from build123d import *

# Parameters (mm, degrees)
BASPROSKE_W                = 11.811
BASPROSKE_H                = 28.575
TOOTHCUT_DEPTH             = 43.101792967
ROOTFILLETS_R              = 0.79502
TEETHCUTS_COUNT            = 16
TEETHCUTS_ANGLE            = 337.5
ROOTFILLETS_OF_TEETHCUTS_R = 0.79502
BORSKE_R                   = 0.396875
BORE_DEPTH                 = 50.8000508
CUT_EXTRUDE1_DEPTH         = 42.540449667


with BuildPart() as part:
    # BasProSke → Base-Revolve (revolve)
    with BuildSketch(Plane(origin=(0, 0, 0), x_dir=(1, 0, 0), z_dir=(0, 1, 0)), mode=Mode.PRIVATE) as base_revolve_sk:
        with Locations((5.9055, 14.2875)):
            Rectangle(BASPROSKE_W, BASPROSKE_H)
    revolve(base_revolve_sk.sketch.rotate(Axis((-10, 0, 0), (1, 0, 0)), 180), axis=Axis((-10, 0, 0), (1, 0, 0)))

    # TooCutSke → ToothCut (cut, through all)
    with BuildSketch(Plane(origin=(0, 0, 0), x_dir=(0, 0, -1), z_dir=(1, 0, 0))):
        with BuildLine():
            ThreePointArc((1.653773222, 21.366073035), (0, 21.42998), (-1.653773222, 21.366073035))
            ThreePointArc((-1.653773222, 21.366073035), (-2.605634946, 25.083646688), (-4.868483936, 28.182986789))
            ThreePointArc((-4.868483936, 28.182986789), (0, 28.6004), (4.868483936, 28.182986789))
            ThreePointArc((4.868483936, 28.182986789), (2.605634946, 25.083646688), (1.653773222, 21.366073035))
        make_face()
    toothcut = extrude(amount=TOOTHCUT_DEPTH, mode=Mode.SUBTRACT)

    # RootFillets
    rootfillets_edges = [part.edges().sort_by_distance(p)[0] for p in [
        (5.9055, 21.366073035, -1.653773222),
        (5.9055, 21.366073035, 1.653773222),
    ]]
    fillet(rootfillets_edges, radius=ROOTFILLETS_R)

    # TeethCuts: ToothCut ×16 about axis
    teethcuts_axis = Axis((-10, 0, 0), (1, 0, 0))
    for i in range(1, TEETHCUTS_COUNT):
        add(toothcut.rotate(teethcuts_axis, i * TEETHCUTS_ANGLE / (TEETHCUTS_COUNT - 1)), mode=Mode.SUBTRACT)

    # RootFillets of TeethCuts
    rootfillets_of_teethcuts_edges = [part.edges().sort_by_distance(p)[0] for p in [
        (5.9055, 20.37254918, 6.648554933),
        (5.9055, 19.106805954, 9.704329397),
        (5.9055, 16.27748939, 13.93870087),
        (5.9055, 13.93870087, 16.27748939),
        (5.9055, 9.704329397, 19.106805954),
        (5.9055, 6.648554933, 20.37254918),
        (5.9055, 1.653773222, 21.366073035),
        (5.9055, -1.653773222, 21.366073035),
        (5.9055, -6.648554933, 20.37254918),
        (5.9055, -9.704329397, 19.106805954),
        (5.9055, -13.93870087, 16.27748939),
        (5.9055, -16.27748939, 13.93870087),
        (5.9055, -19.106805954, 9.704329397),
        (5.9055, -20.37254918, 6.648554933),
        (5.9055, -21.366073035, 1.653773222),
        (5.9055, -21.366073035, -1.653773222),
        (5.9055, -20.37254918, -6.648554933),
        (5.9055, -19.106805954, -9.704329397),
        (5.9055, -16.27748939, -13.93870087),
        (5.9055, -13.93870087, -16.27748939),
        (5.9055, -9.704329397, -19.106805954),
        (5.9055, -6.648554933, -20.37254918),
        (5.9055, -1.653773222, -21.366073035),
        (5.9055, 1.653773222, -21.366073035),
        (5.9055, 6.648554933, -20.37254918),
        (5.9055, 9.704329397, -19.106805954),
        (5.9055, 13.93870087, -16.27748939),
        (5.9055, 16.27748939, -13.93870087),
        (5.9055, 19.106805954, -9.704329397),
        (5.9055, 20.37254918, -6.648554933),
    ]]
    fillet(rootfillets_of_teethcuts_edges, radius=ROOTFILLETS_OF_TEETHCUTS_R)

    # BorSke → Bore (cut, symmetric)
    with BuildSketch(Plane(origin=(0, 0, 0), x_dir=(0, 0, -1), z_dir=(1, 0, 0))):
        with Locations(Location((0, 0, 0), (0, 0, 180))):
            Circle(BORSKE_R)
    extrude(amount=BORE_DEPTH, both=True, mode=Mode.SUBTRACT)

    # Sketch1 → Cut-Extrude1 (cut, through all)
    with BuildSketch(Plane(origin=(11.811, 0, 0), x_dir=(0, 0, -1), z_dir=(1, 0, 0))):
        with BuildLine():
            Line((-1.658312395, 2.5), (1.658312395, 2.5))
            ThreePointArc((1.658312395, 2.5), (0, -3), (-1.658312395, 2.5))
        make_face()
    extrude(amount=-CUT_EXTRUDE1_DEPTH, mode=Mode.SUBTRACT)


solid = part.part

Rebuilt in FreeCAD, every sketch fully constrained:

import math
import FreeCAD as App
import Part
import Sketcher

V = App.Vector
Q = App.Units.Quantity


def edges_at(feature, points):
    """Names of the edges that pass closest to the given points."""
    edges = feature.Shape.Edges
    near = lambda p: min(range(len(edges)), key=lambda i: edges[i].distToShape(Part.Vertex(*p))[0])
    return sorted({f"Edge{near(p) + 1}" for p in points})

doc = App.newDocument("Part")
body = doc.addObject("PartDesign::Body", "Body")

sketch1 = body.newObject("Sketcher::SketchObject", "Sketch")
sketch1.AttachmentSupport = (doc.getObject("XZ_Plane"), [""])
sketch1.MapMode = "FlatFace"
sketch1.addGeometry([
    Part.LineSegment(V(0, -29, 0), V(0, 0, 0)),
    Part.LineSegment(V(0, 0, 0), V(12, 0, 0)),
    Part.LineSegment(V(12, 0, 0), V(12, -29, 0)),
    Part.LineSegment(V(12, -29, 0), V(0, -29, 0)),
], False)
sketch1.addConstraint([
    Sketcher.Constraint("Coincident", 0, 2, 1, 1),
    Sketcher.Constraint("Coincident", 1, 2, 2, 1),
    Sketcher.Constraint("Coincident", 2, 2, 3, 1),
    Sketcher.Constraint("Coincident", 3, 2, 0, 1),
    Sketcher.Constraint("Vertical", 0),
    Sketcher.Constraint("Horizontal", 1),
    Sketcher.Constraint("Vertical", 2),
    Sketcher.Constraint("Horizontal", 3),
    Sketcher.Constraint("Coincident", 0, 2, -1, 1),
    Sketcher.Constraint("DistanceX", 1, 1, 1, 2, Q("0.465 in")),
    Sketcher.Constraint("DistanceY", 0, 1, 0, 2, Q("1.125 in")),
])
revolution = body.newObject("PartDesign::Revolution", "Revolution")
revolution.Profile = sketch1
revolution.ReferenceAxis = (sketch1, ["H_Axis"])
revolution.Angle = 360

sketch2 = body.newObject("Sketcher::SketchObject", "Sketch001")
sketch2.AttachmentSupport = (doc.getObject("YZ_Plane"), [""])
sketch2.MapMode = "FlatFace"
sketch2.addGeometry([
    Part.ArcOfCircle(Part.Circle(V(0, 0, 0), V(0, 0, 1), 21.4), math.radians(-4.43), math.radians(4.43)),
    Part.ArcOfCircle(Part.Circle(V(20.8, -11.8, 0), V(0, 0, 1), 10.2), math.radians(43), math.radians(87)),
    Part.ArcOfCircle(Part.Circle(V(0, 0, 0), V(0, 0, 1), 28.6), math.radians(-9.8), math.radians(9.8)),
    Part.ArcOfCircle(Part.Circle(V(20.8, 11.8, 0), V(0, 0, 1), 10.2), math.radians(-87), math.radians(-43)),
], False)
sketch2.addConstraint([
    Sketcher.Constraint("Coincident", 0, 1, 1, 2),
    Sketcher.Constraint("Coincident", 1, 1, 2, 1),
    Sketcher.Constraint("Coincident", 2, 2, 3, 2),
    Sketcher.Constraint("Coincident", 3, 1, 0, 2),
    Sketcher.Constraint("Coincident", 0, 3, -1, 1),
    Sketcher.Constraint("Coincident", 2, 3, -1, 1),
    Sketcher.Constraint("Equal", 1, 3),
    Sketcher.Constraint("Symmetric", 1, 3, 3, 3, -1),
    Sketcher.Constraint("Radius", 1, Q("0.4 in")),
    Sketcher.Constraint("Radius", 2, Q("1.126 in")),
    Sketcher.Constraint("Radius", 0, Q("0.8437 in")),
    Sketcher.Constraint("DistanceX", -1, 1, 1, 3, Q("20.750099 mm")),
    Sketcher.Constraint("DistanceY", 1, 3, 1, 1, Q("6.9266 mm")),
])
pocket1 = body.newObject("PartDesign::Pocket", "Pocket")
pocket1.Profile = sketch2
pocket1.Type = "ThroughAll"
pocket1.Reversed = True
doc.recompute()

fillet = body.newObject("PartDesign::Fillet", "Fillet")
fillet.Base = (pocket1, edges_at(pocket1, [(5.905, 21.366, -1.654), (5.905, 21.366, 1.654)]))
fillet.Radius = Q("0.0313 in")
doc.recompute()

polarpattern = body.newObject("PartDesign::PolarPattern", "PolarPattern")
polarpattern.Originals = [pocket1]
polarpattern.Axis = (doc.getObject("X_Axis"), [""])
polarpattern.Angle = 360
polarpattern.Occurrences = 16
body.Tip = polarpattern
doc.recompute()

fillet2 = body.newObject("PartDesign::Fillet", "Fillet001")
fillet2.Base = (polarpattern, edges_at(polarpattern, [
    (5.905, 20.373, 6.649),
    (5.905, 19.107, 9.704),
    (5.905, 16.277, 13.939),
    (5.905, 13.939, 16.277),
    (5.905, 9.704, 19.107),
    (5.905, 6.649, 20.373),
    (5.905, 1.654, 21.366),
    (5.905, -1.654, 21.366),
    (5.905, -6.649, 20.373),
    (5.905, -9.704, 19.107),
    (5.905, -13.939, 16.277),
    (5.905, -16.277, 13.939),
    (5.905, -19.107, 9.704),
    (5.905, -20.373, 6.649),
    (5.905, -21.366, 1.654),
    (5.905, -21.366, -1.654),
    (5.905, -20.373, -6.649),
    (5.905, -19.107, -9.704),
    (5.905, -16.277, -13.939),
    (5.905, -13.939, -16.277),
    (5.905, -9.704, -19.107),
    (5.905, -6.649, -20.373),
    (5.905, -1.654, -21.366),
    (5.905, 1.654, -21.366),
    (5.905, 6.649, -20.373),
    (5.905, 9.704, -19.107),
    (5.905, 13.939, -16.277),
    (5.905, 16.277, -13.939),
    (5.905, 19.107, -9.704),
    (5.905, 20.373, -6.649),
]))
fillet2.Radius = Q("0.0313 in")

sketch3 = body.newObject("Sketcher::SketchObject", "Sketch002")
sketch3.AttachmentSupport = (doc.getObject("YZ_Plane"), [""])
sketch3.MapMode = "FlatFace"
sketch3.addGeometry(Part.Circle(V(0, 0, 0), V(0, 0, 1), 0.4), False)
sketch3.addConstraint([
    Sketcher.Constraint("Coincident", 0, 3, -1, 1),
    Sketcher.Constraint("Diameter", 0, Q("0.03125 in")),
])
pocket2 = body.newObject("PartDesign::Pocket", "Pocket001")
pocket2.Profile = sketch3
pocket2.Length = 101.600102
pocket2.Midplane = True

sketch4 = body.newObject("Sketcher::SketchObject", "Sketch003")
sketch4.AttachmentSupport = (doc.getObject("YZ_Plane"), [""])
sketch4.MapMode = "FlatFace"
sketch4.AttachmentOffset = App.Placement(V(0, 0, 0.465 * 25.4), App.Rotation())
sketch4.addGeometry([
    Part.LineSegment(V(2.5, -1.7, 0), V(2.5, 1.7, 0)),
    Part.ArcOfCircle(Part.Circle(V(0, 0, 0), V(0, 0, 1), 3), math.radians(34), math.radians(326)),
], False)
sketch4.addConstraint([
    Sketcher.Constraint("Coincident", 0, 1, 1, 2),
    Sketcher.Constraint("Coincident", 1, 1, 0, 2),
    Sketcher.Constraint("Vertical", 0),
    Sketcher.Constraint("Coincident", 1, 3, -1, 1),
    Sketcher.Constraint("Radius", 1, Q("3 mm")),
    Sketcher.Constraint("DistanceX", -1, 1, 0, 1, Q("2.5 mm")),
])
pocket3 = body.newObject("PartDesign::Pocket", "Pocket002")
pocket3.Profile = sketch4
pocket3.Type = "ThroughAll"

doc.recompute()
